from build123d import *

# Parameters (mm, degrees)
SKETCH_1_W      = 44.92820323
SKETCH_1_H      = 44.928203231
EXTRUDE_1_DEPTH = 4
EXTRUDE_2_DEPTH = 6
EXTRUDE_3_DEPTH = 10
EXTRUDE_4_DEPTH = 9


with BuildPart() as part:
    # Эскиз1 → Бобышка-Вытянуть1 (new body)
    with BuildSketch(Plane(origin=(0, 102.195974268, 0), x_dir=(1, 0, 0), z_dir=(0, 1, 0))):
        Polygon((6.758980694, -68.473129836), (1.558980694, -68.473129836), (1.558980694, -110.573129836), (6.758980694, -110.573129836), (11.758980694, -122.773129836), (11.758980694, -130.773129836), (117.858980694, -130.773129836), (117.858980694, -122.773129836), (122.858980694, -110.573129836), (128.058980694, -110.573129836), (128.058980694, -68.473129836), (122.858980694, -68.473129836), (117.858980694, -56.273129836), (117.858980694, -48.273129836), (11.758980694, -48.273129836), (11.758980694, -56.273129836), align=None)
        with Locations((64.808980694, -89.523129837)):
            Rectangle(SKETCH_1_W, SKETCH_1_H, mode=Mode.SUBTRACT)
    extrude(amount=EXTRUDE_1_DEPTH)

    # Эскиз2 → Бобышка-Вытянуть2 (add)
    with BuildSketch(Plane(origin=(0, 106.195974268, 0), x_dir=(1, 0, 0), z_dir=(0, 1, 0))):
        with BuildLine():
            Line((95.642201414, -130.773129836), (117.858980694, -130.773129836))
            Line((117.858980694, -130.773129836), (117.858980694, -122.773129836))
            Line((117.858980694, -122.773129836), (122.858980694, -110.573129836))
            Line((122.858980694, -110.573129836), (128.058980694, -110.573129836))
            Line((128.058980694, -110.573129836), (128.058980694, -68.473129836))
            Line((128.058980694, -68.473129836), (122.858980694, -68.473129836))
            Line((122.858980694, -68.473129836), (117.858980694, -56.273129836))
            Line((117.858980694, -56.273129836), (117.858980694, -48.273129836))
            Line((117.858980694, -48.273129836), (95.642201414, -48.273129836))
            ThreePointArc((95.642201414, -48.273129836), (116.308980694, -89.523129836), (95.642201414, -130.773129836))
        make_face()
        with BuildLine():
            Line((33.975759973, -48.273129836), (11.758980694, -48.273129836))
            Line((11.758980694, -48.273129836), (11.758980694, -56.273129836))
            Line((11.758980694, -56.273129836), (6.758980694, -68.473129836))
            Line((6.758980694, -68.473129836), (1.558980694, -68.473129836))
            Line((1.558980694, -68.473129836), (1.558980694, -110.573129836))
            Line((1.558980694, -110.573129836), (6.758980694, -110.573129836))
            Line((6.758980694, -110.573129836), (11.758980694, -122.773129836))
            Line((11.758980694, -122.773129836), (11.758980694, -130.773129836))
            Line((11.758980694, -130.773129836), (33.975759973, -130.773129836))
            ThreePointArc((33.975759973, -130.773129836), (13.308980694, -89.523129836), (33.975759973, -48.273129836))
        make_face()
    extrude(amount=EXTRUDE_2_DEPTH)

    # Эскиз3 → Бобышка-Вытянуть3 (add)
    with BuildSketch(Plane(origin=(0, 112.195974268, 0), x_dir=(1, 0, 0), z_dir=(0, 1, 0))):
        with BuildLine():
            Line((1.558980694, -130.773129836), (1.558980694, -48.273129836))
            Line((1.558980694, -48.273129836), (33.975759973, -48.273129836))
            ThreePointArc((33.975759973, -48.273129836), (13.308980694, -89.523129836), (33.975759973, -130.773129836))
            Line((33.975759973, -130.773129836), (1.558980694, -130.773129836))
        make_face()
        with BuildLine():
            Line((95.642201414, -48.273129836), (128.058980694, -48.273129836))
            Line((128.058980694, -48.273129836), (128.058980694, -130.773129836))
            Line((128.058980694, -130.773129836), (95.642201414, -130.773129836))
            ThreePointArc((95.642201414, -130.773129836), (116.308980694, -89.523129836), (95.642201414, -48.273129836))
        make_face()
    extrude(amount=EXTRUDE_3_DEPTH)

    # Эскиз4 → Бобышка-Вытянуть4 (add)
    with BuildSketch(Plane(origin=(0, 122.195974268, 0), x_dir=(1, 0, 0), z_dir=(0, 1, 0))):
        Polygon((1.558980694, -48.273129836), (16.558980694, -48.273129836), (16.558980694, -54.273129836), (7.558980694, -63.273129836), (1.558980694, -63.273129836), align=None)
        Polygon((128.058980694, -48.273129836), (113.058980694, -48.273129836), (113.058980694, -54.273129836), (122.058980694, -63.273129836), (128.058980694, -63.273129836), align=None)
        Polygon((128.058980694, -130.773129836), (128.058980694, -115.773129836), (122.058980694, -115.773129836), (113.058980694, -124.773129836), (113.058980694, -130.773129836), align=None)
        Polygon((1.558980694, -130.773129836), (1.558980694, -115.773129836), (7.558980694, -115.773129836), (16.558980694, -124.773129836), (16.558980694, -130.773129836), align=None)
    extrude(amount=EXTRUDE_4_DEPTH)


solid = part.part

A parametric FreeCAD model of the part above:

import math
import FreeCAD as App
import Part
import Sketcher

V = App.Vector

doc = App.newDocument("Part")
body = doc.addObject("PartDesign::Body", "Body")

sketch1 = body.newObject("Sketcher::SketchObject", "Sketch")
sketch1.AttachmentSupport = (doc.getObject("XZ_Plane"), [""])
sketch1.MapMode = "FlatFace"
sketch1.AttachmentOffset = App.Placement(V(0, 0, -102.195974), App.Rotation())
sketch1.addGeometry([
    Part.LineSegment(V(7, 68, 0), V(2, 68, 0)),
    Part.LineSegment(V(2, 68, 0), V(2, 111, 0)),
    Part.LineSegment(V(2, 111, 0), V(7, 111, 0)),
    Part.LineSegment(V(7, 111, 0), V(12, 123, 0)),
    Part.LineSegment(V(12, 123, 0), V(12, 131, 0)),
    Part.LineSegment(V(12, 131, 0), V(118, 131, 0)),
    Part.LineSegment(V(118, 131, 0), V(118, 123, 0)),
    Part.LineSegment(V(118, 123, 0), V(123, 111, 0)),
    Part.LineSegment(V(123, 111, 0), V(128, 111, 0)),
    Part.LineSegment(V(128, 111, 0), V(128, 68, 0)),
    Part.LineSegment(V(128, 68, 0), V(123, 68, 0)),
    Part.LineSegment(V(123, 68, 0), V(118, 56, 0)),
    Part.LineSegment(V(118, 56, 0), V(118, 48, 0)),
    Part.LineSegment(V(118, 48, 0), V(12, 48, 0)),
    Part.LineSegment(V(12, 48, 0), V(12, 56, 0)),
    Part.LineSegment(V(12, 56, 0), V(7, 68, 0)),
    Part.LineSegment(V(87, 112, 0), V(42, 112, 0)),
    Part.LineSegment(V(42, 112, 0), V(42, 67, 0)),
    Part.LineSegment(V(42, 67, 0), V(87, 67, 0)),
    Part.LineSegment(V(87, 67, 0), V(87, 112, 0)),
], False)
sketch1.addConstraint([
    Sketcher.Constraint("Coincident", 0, 2, 1, 1),
    Sketcher.Constraint("Coincident", 1, 2, 2, 1),
    Sketcher.Constraint("Coincident", 2, 2, 3, 1),
    Sketcher.Constraint("Coincident", 3, 2, 4, 1),
    Sketcher.Constraint("Coincident", 4, 2, 5, 1),
    Sketcher.Constraint("Coincident", 5, 2, 6, 1),
    Sketcher.Constraint("Coincident", 6, 2, 7, 1),
    Sketcher.Constraint("Coincident", 7, 2, 8, 1),
    Sketcher.Constraint("Coincident", 8, 2, 9, 1),
    Sketcher.Constraint("Coincident", 9, 2, 10, 1),
    Sketcher.Constraint("Coincident", 10, 2, 11, 1),
    Sketcher.Constraint("Coincident", 11, 2, 12, 1),
    Sketcher.Constraint("Coincident", 12, 2, 13, 1),
    Sketcher.Constraint("Coincident", 13, 2, 14, 1),
    Sketcher.Constraint("Coincident", 14, 2, 15, 1),
    Sketcher.Constraint("Coincident", 15, 2, 0, 1),
    Sketcher.Constraint("Coincident", 16, 2, 17, 1),
    Sketcher.Constraint("Coincident", 17, 2, 18, 1),
    Sketcher.Constraint("Coincident", 18, 2, 19, 1),
    Sketcher.Constraint("Coincident", 19, 2, 16, 1),
    Sketcher.Constraint("Horizontal", 0),
    Sketcher.Constraint("Vertical", 1),
    Sketcher.Constraint("Horizontal", 2),
    Sketcher.Constraint("Vertical", 4),
    Sketcher.Constraint("Horizontal", 5),
    Sketcher.Constraint("Vertical", 6),
    Sketcher.Constraint("Horizontal", 8),
    Sketcher.Constraint("Vertical", 9),
    Sketcher.Constraint("Horizontal", 10),
    Sketcher.Constraint("Vertical", 12),
    Sketcher.Constraint("Horizontal", 13),
    Sketcher.Constraint("Vertical", 14),
    Sketcher.Constraint("Horizontal", 16),
    Sketcher.Constraint("Vertical", 17),
    Sketcher.Constraint("Horizontal", 18),
    Sketcher.Constraint("Vertical", 19),
    Sketcher.Constraint("Parallel", 3, 11),
    Sketcher.Constraint("Parallel", 7, 15),
    Sketcher.Constraint("Horizontal", 3, 2, 6, 2),
    Sketcher.Constraint("Horizontal", 2, 2, 7, 2),
    Sketcher.Constraint("Horizontal", 0, 2, 9, 2),
    Sketcher.Constraint("Horizontal", 11, 2, 14, 2),
    Sketcher.Constraint("Vertical", 7, 2, 10, 2),
    Sketcher.Constraint("Vertical", 6, 2, 11, 2),
    Sketcher.Constraint("Vertical", 4, 2, 13, 2),
    Sketcher.Constraint("Vertical", 2, 2, 15, 2),
    Sketcher.Constraint("Equal", 2, 8),
    Sketcher.Constraint("Equal", 6, 12),
    Sketcher.Constraint("Equal", 18, 17),
    Sketcher.Constraint("DistanceY", 4, 1, 4, 2, 8.0),
    Sketcher.Constraint("DistanceX", 0, 2, 0, 1, 5.2),
    Sketcher.Constraint("DistanceX", 5, 1, 5, 2, 106.1),
    Sketcher.Constraint("DistanceY", 1, 1, 1, 2, 42.1),
    Sketcher.Constraint("DistanceX", 2, 2, 3, 2, 5.0),
    Sketcher.Constraint("DistanceY", 2, 2, 3, 2, 12.2),
    Sketcher.Constraint("DistanceX", 3, 2, 16, 2, 30.585898),
    Sketcher.Constraint("DistanceY", 16, 2, 3, 2, 10.785898),
    Sketcher.Constraint("DistanceY", 14, 2, 17, 2, 10.785898),
    Sketcher.Constraint("DistanceX", -1, 1, 0, 2, 1.558981),
    Sketcher.Constraint("DistanceY", -1, 1, 0, 2, 68.47313),
])
pad1 = body.newObject("PartDesign::Pad", "Pad")
pad1.Profile = sketch1
pad1.Length = 4
pad1.Reversed = True

sketch2 = body.newObject("Sketcher::SketchObject", "Sketch001")
sketch2.AttachmentSupport = (doc.getObject("XZ_Plane"), [""])
sketch2.MapMode = "FlatFace"
sketch2.AttachmentOffset = App.Placement(V(0, 0, -106.195974), App.Rotation())
sketch2.addGeometry([
    Part.LineSegment(V(96, 131, 0), V(118, 131, 0)),
    Part.LineSegment(V(118, 131, 0), V(118, 123, 0)),
    Part.LineSegment(V(118, 123, 0), V(123, 111, 0)),
    Part.LineSegment(V(123, 111, 0), V(128, 111, 0)),
    Part.LineSegment(V(128, 111, 0), V(128, 68, 0)),
    Part.LineSegment(V(128, 68, 0), V(123, 68, 0)),
    Part.LineSegment(V(123, 68, 0), V(118, 56, 0)),
    Part.LineSegment(V(118, 56, 0), V(118, 48, 0)),
    Part.LineSegment(V(118, 48, 0), V(96, 48, 0)),
    Part.ArcOfCircle(Part.Circle(V(65, 90, 0), V(0, 0, 1), 51), math.radians(-53), math.radians(53)),
    Part.LineSegment(V(34, 48, 0), V(12, 48, 0)),
    Part.LineSegment(V(12, 48, 0), V(12, 56, 0)),
    Part.LineSegment(V(12, 56, 0), V(7, 68, 0)),
    Part.LineSegment(V(7, 68, 0), V(2, 68, 0)),
    Part.LineSegment(V(2, 68, 0), V(2, 111, 0)),
    Part.LineSegment(V(2, 111, 0), V(7, 111, 0)),
    Part.LineSegment(V(7, 111, 0), V(12, 123, 0)),
    Part.LineSegment(V(12, 123, 0), V(12, 131, 0)),
    Part.LineSegment(V(12, 131, 0), V(34, 131, 0)),
    Part.ArcOfCircle(Part.Circle(V(65, 90, 0), V(0, 0, 1), 52), math.radians(127), math.radians(233)),
], False)
sketch2.addConstraint([
    Sketcher.Constraint("Coincident", 0, 2, 1, 1),
    Sketcher.Constraint("Coincident", 1, 2, 2, 1),
    Sketcher.Constraint("Coincident", 2, 2, 3, 1),
    Sketcher.Constraint("Coincident", 3, 2, 4, 1),
    Sketcher.Constraint("Coincident", 4, 2, 5, 1),
    Sketcher.Constraint("Coincident", 5, 2, 6, 1),
    Sketcher.Constraint("Coincident", 6, 2, 7, 1),
    Sketcher.Constraint("Coincident", 7, 2, 8, 1),
    Sketcher.Constraint("Coincident", 8, 2, 9, 1),
    Sketcher.Constraint("Coincident", 9, 2, 0, 1),
    Sketcher.Constraint("Coincident", 10, 2, 11, 1),
    Sketcher.Constraint("Coincident", 11, 2, 12, 1),
    Sketcher.Constraint("Coincident", 12, 2, 13, 1),
    Sketcher.Constraint("Coincident", 13, 2, 14, 1),
    Sketcher.Constraint("Coincident", 14, 2, 15, 1),
    Sketcher.Constraint("Coincident", 15, 2, 16, 1),
    Sketcher.Constraint("Coincident", 16, 2, 17, 1),
    Sketcher.Constraint("Coincident", 17, 2, 18, 1),
    Sketcher.Constraint("Coincident", 18, 2, 19, 1),
    Sketcher.Constraint("Coincident", 19, 2, 10, 1),
    Sketcher.Constraint("Horizontal", 0),
    Sketcher.Constraint("Vertical", 1),
    Sketcher.Constraint("Horizontal", 3),
    Sketcher.Constraint("Vertical", 4),
    Sketcher.Constraint("Horizontal", 5),
    Sketcher.Constraint("Vertical", 7),
    Sketcher.Constraint("Horizontal", 8),
    Sketcher.Constraint("Horizontal", 10),
    Sketcher.Constraint("Vertical", 11),
    Sketcher.Constraint("Horizontal", 13),
    Sketcher.Constraint("Vertical", 14),
    Sketcher.Constraint("Horizontal", 15),
    Sketcher.Constraint("Vertical", 17),
    Sketcher.Constraint("Horizontal", 18),
    Sketcher.Constraint("Coincident", 19, 3, 9, 3),
    Sketcher.Constraint("Equal", 9, 19),
    Sketcher.Constraint("Parallel", 2, 12),
    Sketcher.Constraint("Parallel", 6, 16),
    Sketcher.Constraint("Horizontal", 8, 2, 10, 2),
    Sketcher.Constraint("Horizontal", 6, 2, 11, 2),
    Sketcher.Constraint("Horizontal", 5, 2, 12, 2),
    Sketcher.Constraint("Horizontal", 3, 2, 14, 2),
    Sketcher.Constraint("Horizontal", 1, 2, 16, 2),
    Sketcher.Constraint("Horizontal", 9, 2, 17, 2),
    Sketcher.Constraint("Vertical", 2, 2, 5, 2),
    Sketcher.Constraint("Vertical", 1, 2, 6, 2),
    Sketcher.Constraint("Vertical", 8, 2, 9, 2),
    Sketcher.Constraint("Vertical", 12, 2, 15, 2),
    Sketcher.Constraint("Vertical", 11, 2, 16, 2),
    Sketcher.Constraint("Equal", 8, 10),
    Sketcher.Constraint("Equal", 5, 13),
    Sketcher.Constraint("Equal", 1, 7),
    Sketcher.Constraint("Radius", 9, 51.5),
    Sketcher.Constraint("DistanceY", 1, 2, 1, 1, 8.0),
    Sketcher.Constraint("DistanceX", 3, 1, 3, 2, 5.2),
    Sketcher.Constraint("DistanceY", 4, 2, 4, 1, 42.1),
    Sketcher.Constraint("DistanceX", 1, 2, 2, 2, 5.0),
    Sketcher.Constraint("DistanceY", 2, 2, 1, 2, 12.2),
    Sketcher.Constraint("DistanceX", 10, 2, 7, 2, 106.1),
    Sketcher.Constraint("DistanceX", -1, 1, 8, 2, 95.642201),
    Sketcher.Constraint("DistanceY", -1, 1, 9, 3, 89.52313),
])
pad2 = body.newObject("PartDesign::Pad", "Pad001")
pad2.Profile = sketch2
pad2.Length = 6
pad2.Reversed = True

sketch3 = body.newObject("Sketcher::SketchObject", "Sketch002")
sketch3.AttachmentSupport = (doc.getObject("XZ_Plane"), [""])
sketch3.MapMode = "FlatFace"
sketch3.AttachmentOffset = App.Placement(V(0, 0, -112.195974), App.Rotation())
sketch3.addGeometry([
    Part.LineSegment(V(2, 48, 0), V(2, 131, 0)),
    Part.LineSegment(V(2, 131, 0), V(34, 131, 0)),
    Part.ArcOfCircle(Part.Circle(V(65, 90, 0), V(0, 0, 1), 52), math.radians(127), math.radians(233)),
    Part.LineSegment(V(34, 48, 0), V(2, 48, 0)),
    Part.LineSegment(V(128, 48, 0), V(96, 48, 0)),
    Part.ArcOfCircle(Part.Circle(V(65, 90, 0), V(0, 0, 1), 51), math.radians(-53), math.radians(53)),
    Part.LineSegment(V(96, 131, 0), V(128, 131, 0)),
    Part.LineSegment(V(128, 131, 0), V(128, 48, 0)),
], False)
sketch3.addConstraint([
    Sketcher.Constraint("Coincident", 0, 2, 1, 1),
    Sketcher.Constraint("Coincident", 1, 2, 2, 1),
    Sketcher.Constraint("Coincident", 2, 2, 3, 1),
    Sketcher.Constraint("Coincident", 3, 2, 0, 1),
    Sketcher.Constraint("Coincident", 4, 2, 5, 1),
    Sketcher.Constraint("Coincident", 5, 2, 6, 1),
    Sketcher.Constraint("Coincident", 6, 2, 7, 1),
    Sketcher.Constraint("Coincident", 7, 2, 4, 1),
    Sketcher.Constraint("Vertical", 0),
    Sketcher.Constraint("Horizontal", 1),
    Sketcher.Constraint("Horizontal", 3),
    Sketcher.Constraint("Horizontal", 4),
    Sketcher.Constraint("Horizontal", 6),
    Sketcher.Constraint("Vertical", 7),
    Sketcher.Constraint("Coincident", 5, 3, 2, 3),
    Sketcher.Constraint("Equal", 2, 5),
    Sketcher.Constraint("Horizontal", 3, 2, 4, 2),
    Sketcher.Constraint("Horizontal", 1, 2, 5, 2),
    Sketcher.Constraint("Vertical", 1, 2, 2, 2),
    Sketcher.Constraint("Equal", 3, 4),
    Sketcher.Constraint("Radius", 2, 51.5),
    Sketcher.Constraint("DistanceY", 0, 1, 0, 2, 82.5),
    Sketcher.Constraint("DistanceX", 0, 2, 2, 3, 63.25),
    Sketcher.Constraint("DistanceX", -1, 1, 4, 2, 95.642201),
    Sketcher.Constraint("DistanceY", -1, 1, 2, 3, 89.52313),
])
pad3 = body.newObject("PartDesign::Pad", "Pad002")
pad3.Profile = sketch3
pad3.Length = 10
pad3.Reversed = True

sketch4 = body.newObject("Sketcher::SketchObject", "Sketch003")
sketch4.AttachmentSupport = (doc.getObject("XZ_Plane"), [""])
sketch4.MapMode = "FlatFace"
sketch4.AttachmentOffset = App.Placement(V(0, 0, -122.195974), App.Rotation())
sketch4.addGeometry([
    Part.LineSegment(V(17, 48, 0), V(2, 48, 0)),
    Part.LineSegment(V(2, 48, 0), V(2, 63, 0)),
    Part.LineSegment(V(2, 63, 0), V(8, 63, 0)),
    Part.LineSegment(V(8, 63, 0), V(17, 54, 0)),
    Part.LineSegment(V(17, 54, 0), V(17, 48, 0)),
    Part.LineSegment(V(128, 48, 0), V(113, 48, 0)),
    Part.LineSegment(V(113, 48, 0), V(113, 54, 0)),
    Part.LineSegment(V(113, 54, 0), V(122, 63, 0)),
    Part.LineSegment(V(122, 63, 0), V(128, 63, 0)),
    Part.LineSegment(V(128, 63, 0), V(128, 48, 0)),
    Part.LineSegment(V(128, 131, 0), V(128, 116, 0)),
    Part.LineSegment(V(128, 116, 0), V(122, 116, 0)),
    Part.LineSegment(V(122, 116, 0), V(113, 125, 0)),
    Part.LineSegment(V(113, 125, 0), V(113, 131, 0)),
    Part.LineSegment(V(113, 131, 0), V(128, 131, 0)),
    Part.LineSegment(V(2, 116, 0), V(2, 131, 0)),
    Part.LineSegment(V(2, 131, 0), V(17, 131, 0)),
    Part.LineSegment(V(17, 131, 0), V(17, 125, 0)),
    Part.LineSegment(V(17, 125, 0), V(8, 116, 0)),
    Part.LineSegment(V(8, 116, 0), V(2, 116, 0)),
], False)
sketch4.addConstraint([
    Sketcher.Constraint("Coincident", 0, 2, 1, 1),
    Sketcher.Constraint("Coincident", 1, 2, 2, 1),
    Sketcher.Constraint("Coincident", 2, 2, 3, 1),
    Sketcher.Constraint("Coincident", 3, 2, 4, 1),
    Sketcher.Constraint("Coincident", 4, 2, 0, 1),
    Sketcher.Constraint("Coincident", 5, 2, 6, 1),
    Sketcher.Constraint("Coincident", 6, 2, 7, 1),
    Sketcher.Constraint("Coincident", 7, 2, 8, 1),
    Sketcher.Constraint("Coincident", 8, 2, 9, 1),
    Sketcher.Constraint("Coincident", 9, 2, 5, 1),
    Sketcher.Constraint("Coincident", 10, 2, 11, 1),
    Sketcher.Constraint("Coincident", 11, 2, 12, 1),
    Sketcher.Constraint("Coincident", 12, 2, 13, 1),
    Sketcher.Constraint("Coincident", 13, 2, 14, 1),
    Sketcher.Constraint("Coincident", 14, 2, 10, 1),
    Sketcher.Constraint("Coincident", 15, 2, 16, 1),
    Sketcher.Constraint("Coincident", 16, 2, 17, 1),
    Sketcher.Constraint("Coincident", 17, 2, 18, 1),
    Sketcher.Constraint("Coincident", 18, 2, 19, 1),
    Sketcher.Constraint("Coincident", 19, 2, 15, 1),
    Sketcher.Constraint("Horizontal", 0),
    Sketcher.Constraint("Vertical", 1),
    Sketcher.Constraint("Horizontal", 2),
    Sketcher.Constraint("Vertical", 4),
    Sketcher.Constraint("Horizontal", 5),
    Sketcher.Constraint("Vertical", 6),
    Sketcher.Constraint("Horizontal", 8),
    Sketcher.Constraint("Vertical", 9),
    Sketcher.Constraint("Vertical", 10),
    Sketcher.Constraint("Horizontal", 11),
    Sketcher.Constraint("Vertical", 13),
    Sketcher.Constraint("Horizontal", 14),
    Sketcher.Constraint("Vertical", 15),
    Sketcher.Constraint("Horizontal", 16),
    Sketcher.Constraint("Vertical", 17),
    Sketcher.Constraint("Horizontal", 19),
    Sketcher.Constraint("Perpendicular", 3, 7),
    Sketcher.Constraint("Perpendicular", 7, 12),
    Sketcher.Constraint("Perpendicular", 12, 18),
    Sketcher.Constraint("Horizontal", 4, 2, 5, 2),
    Sketcher.Constraint("Horizontal", 3, 2, 6, 2),
    Sketcher.Constraint("Horizontal", 2, 2, 7, 2),
    Sketcher.Constraint("Horizontal", 14, 2, 15, 2),
    Sketcher.Constraint("Horizontal", 12, 2, 17, 2),
    Sketcher.Constraint("Horizontal", 11, 2, 18, 2),
    Sketcher.Constraint("Vertical", 9, 2, 10, 2),
    Sketcher.Constraint("Vertical", 7, 2, 11, 2),
    Sketcher.Constraint("Vertical", 6, 2, 12, 2),
    Sketcher.Constraint("Vertical", 1, 2, 15, 2),
    Sketcher.Constraint("Vertical", 4, 2, 16, 2),
    Sketcher.Constraint("Vertical", 2, 2, 18, 2),
    Sketcher.Constraint("Equal", 0, 5),
    Sketcher.Constraint("Equal", 16, 1),
    Sketcher.Constraint("Equal", 9, 10),
    Sketcher.Constraint("DistanceX", 0, 2, 0, 1, 15.0),
    Sketcher.Constraint("DistanceX", 2, 1, 2, 2, 6.0),
    Sketcher.Constraint("DistanceX", 4, 2, 5, 2, 96.5),
    Sketcher.Constraint("DistanceY", 8, 2, 10, 2, 52.5),
    Sketcher.Constraint("DistanceX", -1, 1, 0, 2, 1.558981),
    Sketcher.Constraint("DistanceY", -1, 1, 0, 2, 48.27313),
])
pad4 = body.newObject("PartDesign::Pad", "Pad003")
pad4.Profile = sketch4
pad4.Length = 9
pad4.Reversed = True

doc.recompute()
